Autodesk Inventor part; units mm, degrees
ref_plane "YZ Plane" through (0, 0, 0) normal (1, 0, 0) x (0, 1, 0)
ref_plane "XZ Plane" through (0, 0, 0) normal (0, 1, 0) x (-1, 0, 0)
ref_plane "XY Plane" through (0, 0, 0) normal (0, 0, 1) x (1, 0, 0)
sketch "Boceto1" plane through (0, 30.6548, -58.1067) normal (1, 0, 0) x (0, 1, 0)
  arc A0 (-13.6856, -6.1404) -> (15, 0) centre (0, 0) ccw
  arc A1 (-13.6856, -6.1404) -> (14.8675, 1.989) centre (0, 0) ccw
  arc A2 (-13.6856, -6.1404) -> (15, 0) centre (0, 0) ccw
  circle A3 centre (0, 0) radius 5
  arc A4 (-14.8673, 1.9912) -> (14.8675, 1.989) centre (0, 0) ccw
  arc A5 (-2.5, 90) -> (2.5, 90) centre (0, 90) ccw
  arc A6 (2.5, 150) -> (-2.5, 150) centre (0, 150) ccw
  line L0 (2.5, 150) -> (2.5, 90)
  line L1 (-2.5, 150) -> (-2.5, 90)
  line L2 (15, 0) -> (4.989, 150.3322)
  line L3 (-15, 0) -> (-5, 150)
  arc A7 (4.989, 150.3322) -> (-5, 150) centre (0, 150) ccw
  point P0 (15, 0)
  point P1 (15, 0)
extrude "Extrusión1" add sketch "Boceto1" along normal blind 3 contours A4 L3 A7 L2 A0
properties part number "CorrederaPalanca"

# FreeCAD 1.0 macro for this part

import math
import FreeCAD as App
import Part
import Sketcher
from FreeCAD import Vector
Q = App.Units.Quantity

doc = App.newDocument("Part")
body = doc.addObject("PartDesign::Body", "Body")

sketch1 = doc.addObject("Sketcher::SketchObject", "Sketch")
body.addObject(sketch1)
sketch1.AttachmentSupport = (doc.YZ_Plane, [""])
sketch1.MapMode = "FlatFace"
sketch1.addGeometry(Part.ArcOfCircle(Part.Circle(Vector(30.6548, -58.1067, 0), Vector(0, 0, 1), 15.000005), math.radians(180), math.radians(204.164628)), False)
sketch1.addGeometry(Part.ArcOfCircle(Part.Circle(Vector(30.6548, -58.1067, 0), Vector(0, 0, 1), 15.000005), math.radians(-155.835372), math.radians(0)), False)
sketch1.addGeometry(Part.LineSegment(Vector(45.6548, -58.1067, 0), Vector(35.6438, 92.2255, 0)), False)
sketch1.addGeometry(Part.ArcOfCircle(Part.Circle(Vector(30.6548, 91.8933, 0), Vector(0, 0, 1), 5.000048), math.radians(3.809501), math.radians(180)), False)
sketch1.addGeometry(Part.LineSegment(Vector(25.6548, 91.8933, 0), Vector(15.6548, -58.1067, 0)), False)
sketch1.addGeometry(Part.Circle(Vector(30.6548, -58.1067, 0), Vector(0, 0, 1), 5), False)
sketch1.addGeometry(Part.ArcOfCircle(Part.Circle(Vector(30.6548, 31.8933, 0), Vector(0, 0, 1), 2.5), math.radians(180), math.radians(360)), False)
sketch1.addGeometry(Part.LineSegment(Vector(28.1548, 31.8933, 0), Vector(28.1548, 91.8933, 0)), False)
sketch1.addGeometry(Part.ArcOfCircle(Part.Circle(Vector(30.6548, 91.8933, 0), Vector(0, 0, 1), 2.5), math.radians(0), math.radians(180)), False)
sketch1.addGeometry(Part.LineSegment(Vector(33.1548, 91.8933, 0), Vector(33.1548, 31.8933, 0)), False)
sketch1.addConstraint(Sketcher.Constraint("Tangent", 0, 2, 1, 1))
sketch1.addConstraint(Sketcher.Constraint("Coincident", 1, 2, 2, 1))
sketch1.addConstraint(Sketcher.Constraint("Tangent", 2, 2, 3, 1))
sketch1.addConstraint(Sketcher.Constraint("Coincident", 3, 2, 4, 1))
sketch1.addConstraint(Sketcher.Constraint("Coincident", 4, 2, 0, 1))
sketch1.addConstraint(Sketcher.Constraint("Tangent", 6, 1, 7, 1))
sketch1.addConstraint(Sketcher.Constraint("Tangent", 7, 2, 8, 2))
sketch1.addConstraint(Sketcher.Constraint("Tangent", 8, 1, 9, 1))
sketch1.addConstraint(Sketcher.Constraint("Tangent", 9, 2, 6, 2))
sketch1.addConstraint(Sketcher.Constraint("Vertical", 7))
sketch1.addConstraint(Sketcher.Constraint("Vertical", 9))
sketch1.addConstraint(Sketcher.Constraint("Coincident", 5, 3, 0, 3))
sketch1.addConstraint(Sketcher.Constraint("Coincident", 8, 3, 3, 3))
sketch1.addConstraint(Sketcher.Constraint("Equal", 0, 1))
sketch1.addConstraint(Sketcher.Constraint("Equal", 3, 5))
sketch1.addConstraint(Sketcher.Constraint("Horizontal", 5, 3, 1, 2))
sketch1.addConstraint(Sketcher.Constraint("Horizontal", 8, 3, 3, 2))
sketch1.addConstraint(Sketcher.Constraint("Horizontal", 1, 2, 4, 2))
sketch1.addConstraint(Sketcher.Constraint("Vertical", 1, 3, 3, 3))
sketch1.addConstraint(Sketcher.Constraint("Diameter", 5, Q("10 mm")))
sketch1.addConstraint(Sketcher.Constraint("Radius", 0, Q("15 mm")))
sketch1.addConstraint(Sketcher.Constraint("Radius", 6, Q("2.5 mm")))
sketch1.addConstraint(Sketcher.Constraint("DistanceY", 7, 1, 7, 2, Q("60 mm")))
sketch1.addConstraint(Sketcher.Constraint("DistanceY", 0, 3, 3, 3, Q("150 mm")))
sketch1.addConstraint(Sketcher.Constraint("DistanceY", 0, 2, -1, 1, Q("64.247 mm")))
sketch1.addConstraint(Sketcher.Constraint("DistanceX", -1, 1, 0, 3, Q("30.6548 mm")))
sketch1.addConstraint(Sketcher.Constraint("DistanceY", 0, 3, -1, 1, Q("58.1067 mm")))
pad1 = doc.addObject("PartDesign::Pad", "Pad")
body.addObject(pad1)
pad1.Profile = sketch1
pad1.Length = 3

doc.recompute()
